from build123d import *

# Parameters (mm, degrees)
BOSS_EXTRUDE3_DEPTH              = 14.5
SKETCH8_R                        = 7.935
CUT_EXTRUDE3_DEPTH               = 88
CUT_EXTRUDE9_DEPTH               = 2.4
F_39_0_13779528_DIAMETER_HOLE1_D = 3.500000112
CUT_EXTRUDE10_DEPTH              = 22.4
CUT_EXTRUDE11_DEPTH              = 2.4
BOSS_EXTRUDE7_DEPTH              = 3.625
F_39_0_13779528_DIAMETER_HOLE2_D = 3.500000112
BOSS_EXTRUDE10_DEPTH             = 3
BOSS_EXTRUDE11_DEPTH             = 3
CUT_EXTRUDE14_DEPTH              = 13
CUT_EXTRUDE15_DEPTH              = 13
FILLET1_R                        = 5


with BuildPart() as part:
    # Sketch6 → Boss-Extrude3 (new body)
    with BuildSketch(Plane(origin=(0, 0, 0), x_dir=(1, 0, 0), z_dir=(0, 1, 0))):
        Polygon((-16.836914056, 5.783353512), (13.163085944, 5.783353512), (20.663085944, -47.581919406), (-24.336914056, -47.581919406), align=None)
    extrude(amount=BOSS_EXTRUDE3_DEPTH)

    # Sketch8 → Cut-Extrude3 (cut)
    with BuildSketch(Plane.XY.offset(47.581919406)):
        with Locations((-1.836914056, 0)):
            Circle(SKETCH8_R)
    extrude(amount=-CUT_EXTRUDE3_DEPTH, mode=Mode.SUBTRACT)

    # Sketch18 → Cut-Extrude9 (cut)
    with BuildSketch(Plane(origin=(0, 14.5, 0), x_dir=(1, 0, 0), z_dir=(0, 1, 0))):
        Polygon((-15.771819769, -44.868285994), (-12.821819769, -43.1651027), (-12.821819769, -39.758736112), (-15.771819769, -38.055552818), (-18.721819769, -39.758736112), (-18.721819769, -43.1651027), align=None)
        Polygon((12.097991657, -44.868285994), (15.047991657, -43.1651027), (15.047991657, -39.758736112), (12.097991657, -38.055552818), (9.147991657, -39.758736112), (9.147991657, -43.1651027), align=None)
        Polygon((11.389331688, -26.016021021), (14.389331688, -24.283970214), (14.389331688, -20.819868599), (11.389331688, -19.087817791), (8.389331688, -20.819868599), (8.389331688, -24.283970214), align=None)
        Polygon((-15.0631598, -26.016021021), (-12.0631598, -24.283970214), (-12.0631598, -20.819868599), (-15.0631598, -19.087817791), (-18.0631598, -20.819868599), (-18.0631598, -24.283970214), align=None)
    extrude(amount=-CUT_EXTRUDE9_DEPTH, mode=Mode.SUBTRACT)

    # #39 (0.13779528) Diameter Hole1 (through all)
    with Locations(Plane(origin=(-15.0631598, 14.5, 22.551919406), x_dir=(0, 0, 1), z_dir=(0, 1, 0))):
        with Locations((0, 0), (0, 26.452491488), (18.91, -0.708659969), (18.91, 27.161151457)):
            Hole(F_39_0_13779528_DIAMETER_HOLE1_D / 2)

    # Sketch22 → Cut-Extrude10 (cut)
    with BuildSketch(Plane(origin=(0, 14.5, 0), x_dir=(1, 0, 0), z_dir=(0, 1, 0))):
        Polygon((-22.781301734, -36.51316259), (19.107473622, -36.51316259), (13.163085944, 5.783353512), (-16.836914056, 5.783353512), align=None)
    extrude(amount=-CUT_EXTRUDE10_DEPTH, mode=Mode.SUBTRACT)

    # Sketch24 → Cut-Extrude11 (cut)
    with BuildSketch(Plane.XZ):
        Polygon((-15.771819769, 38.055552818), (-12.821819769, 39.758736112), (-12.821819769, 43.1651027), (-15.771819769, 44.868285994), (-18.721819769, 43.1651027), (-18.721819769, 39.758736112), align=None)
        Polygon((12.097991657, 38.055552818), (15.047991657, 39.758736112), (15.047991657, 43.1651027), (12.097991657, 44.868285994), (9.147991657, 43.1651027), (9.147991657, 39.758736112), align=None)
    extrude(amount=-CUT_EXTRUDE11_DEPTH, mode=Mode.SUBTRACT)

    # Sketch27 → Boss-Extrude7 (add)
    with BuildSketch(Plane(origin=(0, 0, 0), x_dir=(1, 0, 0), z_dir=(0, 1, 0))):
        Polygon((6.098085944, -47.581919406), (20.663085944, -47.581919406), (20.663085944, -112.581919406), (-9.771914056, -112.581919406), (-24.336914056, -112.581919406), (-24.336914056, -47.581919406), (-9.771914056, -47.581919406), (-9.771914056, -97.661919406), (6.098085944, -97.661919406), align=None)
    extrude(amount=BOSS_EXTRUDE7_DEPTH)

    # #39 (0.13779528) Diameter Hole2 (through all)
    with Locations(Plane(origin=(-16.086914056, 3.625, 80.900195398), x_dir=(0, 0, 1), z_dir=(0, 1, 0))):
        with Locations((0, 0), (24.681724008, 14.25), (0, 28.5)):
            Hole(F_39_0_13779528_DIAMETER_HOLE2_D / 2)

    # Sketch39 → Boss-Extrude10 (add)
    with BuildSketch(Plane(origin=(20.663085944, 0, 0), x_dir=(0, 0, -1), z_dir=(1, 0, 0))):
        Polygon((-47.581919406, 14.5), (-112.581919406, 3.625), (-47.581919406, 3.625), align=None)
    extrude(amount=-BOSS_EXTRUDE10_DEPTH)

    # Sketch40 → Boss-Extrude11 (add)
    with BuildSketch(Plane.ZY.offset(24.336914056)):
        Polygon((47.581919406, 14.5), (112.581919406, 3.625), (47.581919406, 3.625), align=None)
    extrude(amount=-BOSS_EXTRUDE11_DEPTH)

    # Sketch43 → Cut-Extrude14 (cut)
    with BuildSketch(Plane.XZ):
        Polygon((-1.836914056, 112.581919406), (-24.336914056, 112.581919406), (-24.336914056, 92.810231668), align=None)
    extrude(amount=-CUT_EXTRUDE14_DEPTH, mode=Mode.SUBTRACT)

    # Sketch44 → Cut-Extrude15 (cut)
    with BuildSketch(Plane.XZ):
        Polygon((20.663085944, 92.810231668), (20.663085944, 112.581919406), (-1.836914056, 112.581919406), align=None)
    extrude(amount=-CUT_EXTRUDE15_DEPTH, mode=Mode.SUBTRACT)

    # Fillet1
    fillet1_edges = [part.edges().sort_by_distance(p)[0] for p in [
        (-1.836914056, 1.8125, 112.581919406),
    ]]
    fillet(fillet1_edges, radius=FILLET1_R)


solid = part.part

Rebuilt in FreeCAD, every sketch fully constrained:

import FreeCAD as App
import Part
import Sketcher
Q = App.Units.Quantity


def edges_at(feature, points):
    """Names of the edges that pass closest to the given points."""
    edges = feature.Shape.Edges
    near = lambda p: min(range(len(edges)), key=lambda i: edges[i].distToShape(Part.Vertex(*p))[0])
    return sorted({f"Edge{near(p) + 1}" for p in points})


def add_polygon(sketch, points):
    """Adds a closed chain of lines whose ends are joined by coincident constraints."""
    first, n = sketch.GeometryCount, len(points)
    for a, b in zip(points, points[1:] + points[:1]):
        sketch.addGeometry(Part.LineSegment(App.Vector(*a, 0), App.Vector(*b, 0)), False)
    for i in range(n):
        sketch.addConstraint(Sketcher.Constraint("Coincident", first + i, 2, first + (i + 1) % n, 1))

doc = App.newDocument("Part")
body = doc.addObject("PartDesign::Body", "Body")

sketch1 = body.newObject("Sketcher::SketchObject", "Sketch")
sketch1.AttachmentSupport = (doc.getObject("XZ_Plane"), [""])
sketch1.MapMode = "FlatFace"
add_polygon(sketch1, [(13.163086, -5.783354), (-16.836914, -5.783354), (-24.336914, 47.581919), (20.663086, 47.581919)])
sketch1.addConstraint(Sketcher.Constraint("Horizontal", 0))
sketch1.addConstraint(Sketcher.Constraint("Horizontal", 2))
sketch1.addConstraint(Sketcher.Constraint("Equal", 1, 3))
sketch1.addConstraint(Sketcher.Constraint("DistanceX", 0, 2, 0, 1, Q("30 mm")))
sketch1.addConstraint(Sketcher.Constraint("DistanceX", 2, 1, 2, 2, Q("45 mm")))
sketch1.addConstraint(Sketcher.Constraint("Angle", 1, Q("98 deg")))
sketch1.addConstraint(Sketcher.Constraint("DistanceY", -1, 1, 1, 2, Q("47.581919 mm")))
sketch1.addConstraint(Sketcher.Constraint("DistanceX", 0, 2, -1, 1, Q("16.836914 mm")))
pad1 = body.newObject("PartDesign::Pad", "Pad")
pad1.Profile = sketch1
pad1.Length = 14.5
pad1.Reversed = True

sketch2 = body.newObject("Sketcher::SketchObject", "Sketch001")
sketch2.AttachmentSupport = (doc.getObject("XY_Plane"), [""])
sketch2.MapMode = "FlatFace"
sketch2.AttachmentOffset = App.Placement(App.Vector(0, 0, 47.581919), App.Rotation())
sketch2.addGeometry(Part.Circle(App.Vector(-1.836914, 0, 0), App.Vector(0, 0, 1), 7.935), False)
sketch2.addConstraint(Sketcher.Constraint("PointOnObject", 0, 3, -1))
sketch2.addConstraint(Sketcher.Constraint("Diameter", 0, Q("15.87 mm")))
sketch2.addConstraint(Sketcher.Constraint("DistanceX", 0, 3, -1, 1, Q("1.836914 mm")))
pocket1 = body.newObject("PartDesign::Pocket", "Pocket")
pocket1.Profile = sketch2
pocket1.Length = 88

sketch3 = body.newObject("Sketcher::SketchObject", "Sketch002")
sketch3.AttachmentSupport = (doc.getObject("XZ_Plane"), [""])
sketch3.MapMode = "FlatFace"
sketch3.AttachmentOffset = App.Placement(App.Vector(0, 0, -14.5), App.Rotation())
add_polygon(sketch3, [(-15.77182, 44.868286), (-12.82182, 43.165103), (-12.82182, 39.758736), (-15.77182, 38.055553), (-18.72182, 39.758736), (-18.72182, 43.165103)])
add_polygon(sketch3, [(12.097992, 44.868286), (15.047992, 43.165103), (15.047992, 39.758736), (12.097992, 38.055553), (9.147992, 39.758736), (9.147992, 43.165103)])
add_polygon(sketch3, [(11.389332, 26.016021), (14.389332, 24.28397), (14.389332, 20.819869), (11.389332, 19.087818), (8.389332, 20.819869), (8.389332, 24.28397)])
add_polygon(sketch3, [(-15.06316, 26.016021), (-12.06316, 24.28397), (-12.06316, 20.819869), (-15.06316, 19.087818), (-18.06316, 20.819869), (-18.06316, 24.28397)])
sketch3.addConstraint(Sketcher.Constraint("Vertical", 1))
sketch3.addConstraint(Sketcher.Constraint("Vertical", 4))
sketch3.addConstraint(Sketcher.Constraint("Vertical", 7))
sketch3.addConstraint(Sketcher.Constraint("Vertical", 10))
sketch3.addConstraint(Sketcher.Constraint("Vertical", 13))
sketch3.addConstraint(Sketcher.Constraint("Vertical", 16))
sketch3.addConstraint(Sketcher.Constraint("Vertical", 19))
sketch3.addConstraint(Sketcher.Constraint("Vertical", 22))
sketch3.addConstraint(Sketcher.Constraint("Parallel", 0, 3))
sketch3.addConstraint(Sketcher.Constraint("Parallel", 2, 5))
sketch3.addConstraint(Sketcher.Constraint("Parallel", 3, 6))
sketch3.addConstraint(Sketcher.Constraint("Parallel", 5, 8))
sketch3.addConstraint(Sketcher.Constraint("Parallel", 6, 9))
sketch3.addConstraint(Sketcher.Constraint("Parallel", 8, 11))
sketch3.addConstraint(Sketcher.Constraint("Parallel", 9, 12))
sketch3.addConstraint(Sketcher.Constraint("Parallel", 11, 14))
sketch3.addConstraint(Sketcher.Constraint("Parallel", 12, 15))
sketch3.addConstraint(Sketcher.Constraint("Parallel", 14, 17))
sketch3.addConstraint(Sketcher.Constraint("Parallel", 15, 18))
sketch3.addConstraint(Sketcher.Constraint("Parallel", 17, 20))
sketch3.addConstraint(Sketcher.Constraint("Parallel", 18, 21))
sketch3.addConstraint(Sketcher.Constraint("Parallel", 20, 23))
sketch3.addConstraint(Sketcher.Constraint("Horizontal", 1, 2, 3, 2))
sketch3.addConstraint(Sketcher.Constraint("Horizontal", 0, 2, 4, 2))
sketch3.addConstraint(Sketcher.Constraint("Horizontal", 4, 2, 6, 2))
sketch3.addConstraint(Sketcher.Constraint("Horizontal", 3, 2, 7, 2))
sketch3.addConstraint(Sketcher.Constraint("Horizontal", 2, 2, 8, 2))
sketch3.addConstraint(Sketcher.Constraint("Horizontal", 7, 2, 9, 2))
sketch3.addConstraint(Sketcher.Constraint("Horizontal", 6, 2, 10, 2))
sketch3.addConstraint(Sketcher.Constraint("Horizontal", 13, 2, 15, 2))
sketch3.addConstraint(Sketcher.Constraint("Horizontal", 12, 2, 16, 2))
sketch3.addConstraint(Sketcher.Constraint("Horizontal", 16, 2, 18, 2))
sketch3.addConstraint(Sketcher.Constraint("Horizontal", 15, 2, 19, 2))
sketch3.addConstraint(Sketcher.Constraint("Horizontal", 14, 2, 20, 2))
sketch3.addConstraint(Sketcher.Constraint("Horizontal", 19, 2, 21, 2))
sketch3.addConstraint(Sketcher.Constraint("Horizontal", 18, 2, 22, 2))
sketch3.addConstraint(Sketcher.Constraint("Vertical", 2, 2, 5, 2))
sketch3.addConstraint(Sketcher.Constraint("Angle", 0, Q("-30 deg")))
sketch3.addConstraint(Sketcher.Constraint("DistanceX", 14, 2, 13, 2, Q("3 mm")))
sketch3.addConstraint(Sketcher.Constraint("DistanceX", 3, 2, 1, 2, Q("5.9 mm")))
sketch3.addConstraint(Sketcher.Constraint("DistanceY", 13, 2, 13, 1, Q("3.464102 mm")))
sketch3.addConstraint(Sketcher.Constraint("DistanceY", 1, 2, 1, 1, Q("3.406367 mm")))
sketch3.addConstraint(Sketcher.Constraint("DistanceX", 0, 2, -1, 1, Q("12.82182 mm")))
sketch3.addConstraint(Sketcher.Constraint("DistanceX", -1, 1, 6, 2, Q("15.047992 mm")))
sketch3.addConstraint(Sketcher.Constraint("DistanceX", -1, 1, 12, 2, Q("14.389332 mm")))
sketch3.addConstraint(Sketcher.Constraint("DistanceY", -1, 1, 12, 2, Q("24.28397 mm")))
sketch3.addConstraint(Sketcher.Constraint("DistanceX", 18, 2, -1, 1, Q("12.06316 mm")))
sketch3.addConstraint(Sketcher.Constraint("DistanceY", 14, 2, 9, 2, Q("20.670918 mm")))
pocket2 = body.newObject("PartDesign::Pocket", "Pocket001")
pocket2.Profile = sketch3
pocket2.Length = 2.4
pocket2.Reversed = True

sketch4 = body.newObject("Sketcher::SketchObject", "Sketch003")
sketch4.AttachmentSupport = (doc.getObject("XZ_Plane"), [""])
sketch4.MapMode = "FlatFace"
sketch4.AttachmentOffset = App.Placement(App.Vector(0, 0, -14.5), App.Rotation())
sketch4.addGeometry(Part.Circle(App.Vector(-15.06316, 22.551919, 0), App.Vector(0, 0, 1), 1.75), False)
sketch4.addGeometry(Part.Circle(App.Vector(11.389332, 22.551919, 0), App.Vector(0, 0, 1), 1.75), False)
sketch4.addGeometry(Part.Circle(App.Vector(-15.77182, 41.461919, 0), App.Vector(0, 0, 1), 1.75), False)
sketch4.addGeometry(Part.Circle(App.Vector(12.097992, 41.461919, 0), App.Vector(0, 0, 1), 1.75), False)
sketch4.addConstraint(Sketcher.Constraint("Equal", 0, 1))
sketch4.addConstraint(Sketcher.Constraint("Equal", 1, 2))
sketch4.addConstraint(Sketcher.Constraint("Equal", 2, 3))
sketch4.addConstraint(Sketcher.Constraint("Horizontal", 0, 3, 1, 3))
sketch4.addConstraint(Sketcher.Constraint("Horizontal", 2, 3, 3, 3))
sketch4.addConstraint(Sketcher.Constraint("Diameter", 0, Q("3.5 mm")))
sketch4.addConstraint(Sketcher.Constraint("DistanceY", 0, 3, 2, 3, Q("18.91 mm")))
sketch4.addConstraint(Sketcher.Constraint("DistanceX", 0, 3, -1, 1, Q("15.06316 mm")))
sketch4.addConstraint(Sketcher.Constraint("DistanceY", -1, 1, 0, 3, Q("22.551919 mm")))
sketch4.addConstraint(Sketcher.Constraint("DistanceX", -1, 1, 1, 3, Q("11.389332 mm")))
sketch4.addConstraint(Sketcher.Constraint("DistanceX", 2, 3, -1, 1, Q("15.77182 mm")))
sketch4.addConstraint(Sketcher.Constraint("DistanceX", -1, 1, 3, 3, Q("12.097992 mm")))
doc.recompute()
hole = body.newObject("PartDesign::Hole", "Hole")
hole.Profile = sketch4
hole.ThreadType = "None"
hole.Diameter = 3.5
hole.DepthType = "ThroughAll"
hole.Reversed = True

sketch5 = body.newObject("Sketcher::SketchObject", "Sketch004")
sketch5.AttachmentSupport = (doc.getObject("XZ_Plane"), [""])
sketch5.MapMode = "FlatFace"
sketch5.AttachmentOffset = App.Placement(App.Vector(0, 0, -14.5), App.Rotation())
add_polygon(sketch5, [(-22.781302, 36.513163), (19.107474, 36.513163), (13.163086, -5.783354), (-16.836914, -5.783354)])
sketch5.addConstraint(Sketcher.Constraint("Horizontal", 0))
sketch5.addConstraint(Sketcher.Constraint("Horizontal", 2))
sketch5.addConstraint(Sketcher.Constraint("Equal", 1, 3))
sketch5.addConstraint(Sketcher.Constraint("DistanceX", 2, 2, 2, 1, Q("30 mm")))
sketch5.addConstraint(Sketcher.Constraint("Angle", 1, Q("-98 deg")))
sketch5.addConstraint(Sketcher.Constraint("DistanceX", 3, 2, -1, 1, Q("22.781302 mm")))
sketch5.addConstraint(Sketcher.Constraint("Distance", 1, Q("42.712188 mm")))
sketch5.addConstraint(Sketcher.Constraint("DistanceY", -1, 1, 0, 2, Q("36.513163 mm")))
pocket3 = body.newObject("PartDesign::Pocket", "Pocket002")
pocket3.Profile = sketch5
pocket3.Length = 22.4
pocket3.Reversed = True

sketch6 = body.newObject("Sketcher::SketchObject", "Sketch005")
sketch6.AttachmentSupport = (doc.getObject("XZ_Plane"), [""])
sketch6.MapMode = "FlatFace"
add_polygon(sketch6, [(-15.77182, 38.055553), (-12.82182, 39.758736), (-12.82182, 43.165103), (-15.77182, 44.868286), (-18.72182, 43.165103), (-18.72182, 39.758736)])
add_polygon(sketch6, [(12.097992, 38.055553), (15.047992, 39.758736), (15.047992, 43.165103), (12.097992, 44.868286), (9.147992, 43.165103), (9.147992, 39.758736)])
sketch6.addConstraint(Sketcher.Constraint("Vertical", 1))
sketch6.addConstraint(Sketcher.Constraint("Vertical", 4))
sketch6.addConstraint(Sketcher.Constraint("Vertical", 7))
sketch6.addConstraint(Sketcher.Constraint("Vertical", 10))
sketch6.addConstraint(Sketcher.Constraint("Parallel", 0, 3))
sketch6.addConstraint(Sketcher.Constraint("Parallel", 2, 5))
sketch6.addConstraint(Sketcher.Constraint("Parallel", 3, 6))
sketch6.addConstraint(Sketcher.Constraint("Parallel", 5, 8))
sketch6.addConstraint(Sketcher.Constraint("Parallel", 6, 9))
sketch6.addConstraint(Sketcher.Constraint("Parallel", 8, 11))
sketch6.addConstraint(Sketcher.Constraint("Horizontal", 1, 2, 3, 2))
sketch6.addConstraint(Sketcher.Constraint("Horizontal", 0, 2, 4, 2))
sketch6.addConstraint(Sketcher.Constraint("Horizontal", 4, 2, 6, 2))
sketch6.addConstraint(Sketcher.Constraint("Horizontal", 3, 2, 7, 2))
sketch6.addConstraint(Sketcher.Constraint("Horizontal", 2, 2, 8, 2))
sketch6.addConstraint(Sketcher.Constraint("Horizontal", 7, 2, 9, 2))
sketch6.addConstraint(Sketcher.Constraint("Horizontal", 6, 2, 10, 2))
sketch6.addConstraint(Sketcher.Constraint("Vertical", 2, 2, 5, 2))
sketch6.addConstraint(Sketcher.Constraint("Angle", 0, Q("30 deg")))
sketch6.addConstraint(Sketcher.Constraint("DistanceX", 3, 2, 1, 2, Q("5.9 mm")))
sketch6.addConstraint(Sketcher.Constraint("DistanceY", 1, 1, 1, 2, Q("3.406367 mm")))
sketch6.addConstraint(Sketcher.Constraint("DistanceX", 0, 2, -1, 1, Q("12.82182 mm")))
sketch6.addConstraint(Sketcher.Constraint("DistanceX", -1, 1, 6, 2, Q("15.047992 mm")))
sketch6.addConstraint(Sketcher.Constraint("DistanceY", -1, 1, 0, 2, Q("39.758736 mm")))
pocket4 = body.newObject("PartDesign::Pocket", "Pocket003")
pocket4.Profile = sketch6
pocket4.Length = 2.4

sketch7 = body.newObject("Sketcher::SketchObject", "Sketch006")
sketch7.AttachmentSupport = (doc.getObject("XZ_Plane"), [""])
sketch7.MapMode = "FlatFace"
add_polygon(sketch7, [(20.663086, 47.581919), (6.098086, 47.581919), (6.098086, 97.661919), (-9.771914, 97.661919), (-9.771914, 47.581919), (-24.336914, 47.581919), (-24.336914, 112.581919), (20.663086, 112.581919)])
sketch7.addConstraint(Sketcher.Constraint("Horizontal", 0))
sketch7.addConstraint(Sketcher.Constraint("Vertical", 1))
sketch7.addConstraint(Sketcher.Constraint("Horizontal", 2))
sketch7.addConstraint(Sketcher.Constraint("Vertical", 3))
sketch7.addConstraint(Sketcher.Constraint("Horizontal", 4))
sketch7.addConstraint(Sketcher.Constraint("Vertical", 5))
sketch7.addConstraint(Sketcher.Constraint("Horizontal", 6))
sketch7.addConstraint(Sketcher.Constraint("Vertical", 7))
sketch7.addConstraint(Sketcher.Constraint("Horizontal", 0, 2, 3, 2))
sketch7.addConstraint(Sketcher.Constraint("Equal", 0, 4))
sketch7.addConstraint(Sketcher.Constraint("DistanceX", 6, 1, 6, 2, Q("45 mm")))
sketch7.addConstraint(Sketcher.Constraint("DistanceY", 5, 1, 5, 2, Q("65 mm")))
sketch7.addConstraint(Sketcher.Constraint("DistanceX", 2, 2, 2, 1, Q("15.87 mm")))
sketch7.addConstraint(Sketcher.Constraint("DistanceY", 1, 1, 1, 2, Q("50.08 mm")))
sketch7.addConstraint(Sketcher.Constraint("DistanceY", -1, 1, 0, 2, Q("47.581919 mm")))
sketch7.addConstraint(Sketcher.Constraint("DistanceX", -1, 1, 0, 2, Q("6.098086 mm")))
pad2 = body.newObject("PartDesign::Pad", "Pad001")
pad2.Profile = sketch7
pad2.Length = 3.625
pad2.Reversed = True

sketch8 = body.newObject("Sketcher::SketchObject", "Sketch007")
sketch8.AttachmentSupport = (doc.getObject("XZ_Plane"), [""])
sketch8.MapMode = "FlatFace"
sketch8.AttachmentOffset = App.Placement(App.Vector(0, 0, -3.625), App.Rotation())
sketch8.addGeometry(Part.Circle(App.Vector(-16.086914, 80.900195, 0), App.Vector(0, 0, 1), 1.75), False)
sketch8.addGeometry(Part.Circle(App.Vector(-1.836914, 105.581919, 0), App.Vector(0, 0, 1), 1.75), False)
sketch8.addGeometry(Part.Circle(App.Vector(12.413086, 80.900195, 0), App.Vector(0, 0, 1), 1.75), False)
sketch8.addConstraint(Sketcher.Constraint("Equal", 0, 1))
sketch8.addConstraint(Sketcher.Constraint("Equal", 1, 2))
sketch8.addConstraint(Sketcher.Constraint("Horizontal", 0, 3, 2, 3))
sketch8.addConstraint(Sketcher.Constraint("Diameter", 0, Q("3.5 mm")))
sketch8.addConstraint(Sketcher.Constraint("DistanceX", 0, 3, 2, 3, Q("28.5 mm")))
sketch8.addConstraint(Sketcher.Constraint("DistanceX", 0, 3, 1, 3, Q("14.25 mm")))
sketch8.addConstraint(Sketcher.Constraint("DistanceY", -1, 1, 1, 3, Q("105.581919 mm")))
sketch8.addConstraint(Sketcher.Constraint("DistanceX", 0, 3, -1, 1, Q("16.086914 mm")))
sketch8.addConstraint(Sketcher.Constraint("DistanceY", -1, 1, 0, 3, Q("80.900195 mm")))
doc.recompute()
hole2 = body.newObject("PartDesign::Hole", "Hole001")
hole2.Profile = sketch8
hole2.ThreadType = "None"
hole2.Diameter = 3.5
hole2.DepthType = "ThroughAll"
hole2.Reversed = True

sketch9 = body.newObject("Sketcher::SketchObject", "Sketch008")
sketch9.AttachmentSupport = (doc.getObject("YZ_Plane"), [""])
sketch9.MapMode = "FlatFace"
sketch9.AttachmentOffset = App.Placement(App.Vector(0, 0, 20.663086), App.Rotation())
add_polygon(sketch9, [(14.5, 47.581919), (3.625, 112.581919), (3.625, 47.581919)])
sketch9.addConstraint(Sketcher.Constraint("Vertical", 1))
sketch9.addConstraint(Sketcher.Constraint("Horizontal", 2))
sketch9.addConstraint(Sketcher.Constraint("DistanceY", 1, 2, 1, 1, Q("65 mm")))
sketch9.addConstraint(Sketcher.Constraint("DistanceX", -1, 1, 2, 2, Q("14.5 mm")))
sketch9.addConstraint(Sketcher.Constraint("DistanceX", 2, 1, 2, 2, Q("10.875 mm")))
sketch9.addConstraint(Sketcher.Constraint("DistanceY", -1, 1, 0, 2, Q("112.581919 mm")))
pad3 = body.newObject("PartDesign::Pad", "Pad002")
pad3.Profile = sketch9
pad3.Length = 3
pad3.Reversed = True

sketch10 = body.newObject("Sketcher::SketchObject", "Sketch009")
sketch10.AttachmentSupport = (doc.getObject("YZ_Plane"), [""])
sketch10.MapMode = "FlatFace"
sketch10.AttachmentOffset = App.Placement(App.Vector(0, 0, -24.336914), App.Rotation())
add_polygon(sketch10, [(3.625, 112.581919), (14.5, 47.581919), (3.625, 47.581919)])
sketch10.addConstraint(Sketcher.Constraint("Horizontal", 1))
sketch10.addConstraint(Sketcher.Constraint("Vertical", 2))
sketch10.addConstraint(Sketcher.Constraint("DistanceY", 2, 1, 2, 2, Q("65 mm")))
sketch10.addConstraint(Sketcher.Constraint("DistanceX", -1, 1, 0, 2, Q("14.5 mm")))
sketch10.addConstraint(Sketcher.Constraint("DistanceX", 1, 2, 1, 1, Q("10.875 mm")))
sketch10.addConstraint(Sketcher.Constraint("DistanceY", -1, 1, 0, 2, Q("47.581919 mm")))
pad4 = body.newObject("PartDesign::Pad", "Pad003")
pad4.Profile = sketch10
pad4.Length = 3

sketch11 = body.newObject("Sketcher::SketchObject", "Sketch010")
sketch11.AttachmentSupport = (doc.getObject("XZ_Plane"), [""])
sketch11.MapMode = "FlatFace"
add_polygon(sketch11, [(-1.836914, 112.581919), (-24.336914, 112.581919), (-24.336914, 92.810232)])
sketch11.addConstraint(Sketcher.Constraint("Horizontal", 0))
sketch11.addConstraint(Sketcher.Constraint("Vertical", 1))
sketch11.addConstraint(Sketcher.Constraint("DistanceX", 0, 2, 0, 1, Q("22.5 mm")))
sketch11.addConstraint(Sketcher.Constraint("Distance", 2, Q("29.95279 mm")))
sketch11.addConstraint(Sketcher.Constraint("DistanceY", -1, 1, 0, 2, Q("112.581919 mm")))
sketch11.addConstraint(Sketcher.Constraint("DistanceX", 0, 2, -1, 1, Q("24.336914 mm")))
pocket5 = body.newObject("PartDesign::Pocket", "Pocket004")
pocket5.Profile = sketch11
pocket5.Length = 13

sketch12 = body.newObject("Sketcher::SketchObject", "Sketch011")
sketch12.AttachmentSupport = (doc.getObject("XZ_Plane"), [""])
sketch12.MapMode = "FlatFace"
add_polygon(sketch12, [(20.663086, 92.810232), (20.663086, 112.581919), (-1.836914, 112.581919)])
sketch12.addConstraint(Sketcher.Constraint("Vertical", 0))
sketch12.addConstraint(Sketcher.Constraint("Horizontal", 1))
sketch12.addConstraint(Sketcher.Constraint("DistanceX", 1, 2, 1, 1, Q("22.5 mm")))
sketch12.addConstraint(Sketcher.Constraint("Distance", 2, Q("29.95279 mm")))
sketch12.addConstraint(Sketcher.Constraint("DistanceY", -1, 1, 0, 2, Q("112.581919 mm")))
sketch12.addConstraint(Sketcher.Constraint("DistanceX", -1, 1, 0, 2, Q("20.663086 mm")))
pocket6 = body.newObject("PartDesign::Pocket", "Pocket005")
pocket6.Profile = sketch12
pocket6.Length = 13
doc.recompute()

fillet = body.newObject("PartDesign::Fillet", "Fillet")
fillet.Base = (pocket6, edges_at(pocket6, [(-1.837, 1.812, 112.582)]))
fillet.Radius = 5

doc.recompute()
